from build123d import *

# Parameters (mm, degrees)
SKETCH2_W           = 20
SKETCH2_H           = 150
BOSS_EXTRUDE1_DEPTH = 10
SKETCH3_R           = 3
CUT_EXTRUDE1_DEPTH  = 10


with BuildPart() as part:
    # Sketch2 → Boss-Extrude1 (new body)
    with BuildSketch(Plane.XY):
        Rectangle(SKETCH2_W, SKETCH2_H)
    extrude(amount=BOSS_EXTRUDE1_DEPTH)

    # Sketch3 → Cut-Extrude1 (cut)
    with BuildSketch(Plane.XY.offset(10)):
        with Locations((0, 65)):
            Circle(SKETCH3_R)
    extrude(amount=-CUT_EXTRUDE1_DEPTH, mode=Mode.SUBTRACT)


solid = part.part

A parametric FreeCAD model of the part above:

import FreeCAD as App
import Part
import Sketcher
from FreeCAD import Vector
Q = App.Units.Quantity

doc = App.newDocument("Part")
body = doc.addObject("PartDesign::Body", "Body")

# Sketch on XY plane
sketch1 = body.newObject("Sketcher::SketchObject", "Sketch")
sketch1.AttachmentSupport = (doc.getObject("XY_Plane"), [""])
sketch1.MapMode = "FlatFace"
sketch1.addGeometry([
    Part.LineSegment(Vector(-10, 75, 0), Vector(-10, -75, 0)),
    Part.LineSegment(Vector(-10, -75, 0), Vector(10, -75, 0)),
    Part.LineSegment(Vector(10, -75, 0), Vector(10, 75, 0)),
    Part.LineSegment(Vector(10, 75, 0), Vector(-10, 75, 0)),
], False)
sketch1.addConstraint([
    Sketcher.Constraint("Coincident", 0, 2, 1, 1),
    Sketcher.Constraint("Coincident", 1, 2, 2, 1),
    Sketcher.Constraint("Coincident", 2, 2, 3, 1),
    Sketcher.Constraint("Coincident", 3, 2, 0, 1),
    Sketcher.Constraint("Vertical", 0),
    Sketcher.Constraint("Horizontal", 1),
    Sketcher.Constraint("Vertical", 2),
    Sketcher.Constraint("Horizontal", 3),
    Sketcher.Constraint("Symmetric", 0, 2, 2, 2, -1, 1),
    Sketcher.Constraint("DistanceX", 1, 1, 1, 2, Q("20 mm")),
    Sketcher.Constraint("DistanceY", 0, 2, 0, 1, Q("150 mm")),
])
pad1 = body.newObject("PartDesign::Pad", "Pad")
pad1.Profile = sketch1
pad1.Length = 10

# Sketch on XY plane
sketch2 = body.newObject("Sketcher::SketchObject", "Sketch001")
sketch2.AttachmentSupport = (doc.getObject("XY_Plane"), [""])
sketch2.MapMode = "FlatFace"
sketch2.AttachmentOffset = App.Placement(Vector(0, 0, 10), App.Rotation())
sketch2.addGeometry(Part.Circle(Vector(0, 65, 0), Vector(0, 0, 1), 3), False)
sketch2.addConstraint([
    Sketcher.Constraint("PointOnObject", 0, 3, -2),
    Sketcher.Constraint("Diameter", 0, Q("6 mm")),
    Sketcher.Constraint("DistanceY", -1, 1, 0, 3, Q("65 mm")),
])
pocket1 = body.newObject("PartDesign::Pocket", "Pocket")
pocket1.Profile = sketch2
pocket1.Length = 10

doc.recompute()
